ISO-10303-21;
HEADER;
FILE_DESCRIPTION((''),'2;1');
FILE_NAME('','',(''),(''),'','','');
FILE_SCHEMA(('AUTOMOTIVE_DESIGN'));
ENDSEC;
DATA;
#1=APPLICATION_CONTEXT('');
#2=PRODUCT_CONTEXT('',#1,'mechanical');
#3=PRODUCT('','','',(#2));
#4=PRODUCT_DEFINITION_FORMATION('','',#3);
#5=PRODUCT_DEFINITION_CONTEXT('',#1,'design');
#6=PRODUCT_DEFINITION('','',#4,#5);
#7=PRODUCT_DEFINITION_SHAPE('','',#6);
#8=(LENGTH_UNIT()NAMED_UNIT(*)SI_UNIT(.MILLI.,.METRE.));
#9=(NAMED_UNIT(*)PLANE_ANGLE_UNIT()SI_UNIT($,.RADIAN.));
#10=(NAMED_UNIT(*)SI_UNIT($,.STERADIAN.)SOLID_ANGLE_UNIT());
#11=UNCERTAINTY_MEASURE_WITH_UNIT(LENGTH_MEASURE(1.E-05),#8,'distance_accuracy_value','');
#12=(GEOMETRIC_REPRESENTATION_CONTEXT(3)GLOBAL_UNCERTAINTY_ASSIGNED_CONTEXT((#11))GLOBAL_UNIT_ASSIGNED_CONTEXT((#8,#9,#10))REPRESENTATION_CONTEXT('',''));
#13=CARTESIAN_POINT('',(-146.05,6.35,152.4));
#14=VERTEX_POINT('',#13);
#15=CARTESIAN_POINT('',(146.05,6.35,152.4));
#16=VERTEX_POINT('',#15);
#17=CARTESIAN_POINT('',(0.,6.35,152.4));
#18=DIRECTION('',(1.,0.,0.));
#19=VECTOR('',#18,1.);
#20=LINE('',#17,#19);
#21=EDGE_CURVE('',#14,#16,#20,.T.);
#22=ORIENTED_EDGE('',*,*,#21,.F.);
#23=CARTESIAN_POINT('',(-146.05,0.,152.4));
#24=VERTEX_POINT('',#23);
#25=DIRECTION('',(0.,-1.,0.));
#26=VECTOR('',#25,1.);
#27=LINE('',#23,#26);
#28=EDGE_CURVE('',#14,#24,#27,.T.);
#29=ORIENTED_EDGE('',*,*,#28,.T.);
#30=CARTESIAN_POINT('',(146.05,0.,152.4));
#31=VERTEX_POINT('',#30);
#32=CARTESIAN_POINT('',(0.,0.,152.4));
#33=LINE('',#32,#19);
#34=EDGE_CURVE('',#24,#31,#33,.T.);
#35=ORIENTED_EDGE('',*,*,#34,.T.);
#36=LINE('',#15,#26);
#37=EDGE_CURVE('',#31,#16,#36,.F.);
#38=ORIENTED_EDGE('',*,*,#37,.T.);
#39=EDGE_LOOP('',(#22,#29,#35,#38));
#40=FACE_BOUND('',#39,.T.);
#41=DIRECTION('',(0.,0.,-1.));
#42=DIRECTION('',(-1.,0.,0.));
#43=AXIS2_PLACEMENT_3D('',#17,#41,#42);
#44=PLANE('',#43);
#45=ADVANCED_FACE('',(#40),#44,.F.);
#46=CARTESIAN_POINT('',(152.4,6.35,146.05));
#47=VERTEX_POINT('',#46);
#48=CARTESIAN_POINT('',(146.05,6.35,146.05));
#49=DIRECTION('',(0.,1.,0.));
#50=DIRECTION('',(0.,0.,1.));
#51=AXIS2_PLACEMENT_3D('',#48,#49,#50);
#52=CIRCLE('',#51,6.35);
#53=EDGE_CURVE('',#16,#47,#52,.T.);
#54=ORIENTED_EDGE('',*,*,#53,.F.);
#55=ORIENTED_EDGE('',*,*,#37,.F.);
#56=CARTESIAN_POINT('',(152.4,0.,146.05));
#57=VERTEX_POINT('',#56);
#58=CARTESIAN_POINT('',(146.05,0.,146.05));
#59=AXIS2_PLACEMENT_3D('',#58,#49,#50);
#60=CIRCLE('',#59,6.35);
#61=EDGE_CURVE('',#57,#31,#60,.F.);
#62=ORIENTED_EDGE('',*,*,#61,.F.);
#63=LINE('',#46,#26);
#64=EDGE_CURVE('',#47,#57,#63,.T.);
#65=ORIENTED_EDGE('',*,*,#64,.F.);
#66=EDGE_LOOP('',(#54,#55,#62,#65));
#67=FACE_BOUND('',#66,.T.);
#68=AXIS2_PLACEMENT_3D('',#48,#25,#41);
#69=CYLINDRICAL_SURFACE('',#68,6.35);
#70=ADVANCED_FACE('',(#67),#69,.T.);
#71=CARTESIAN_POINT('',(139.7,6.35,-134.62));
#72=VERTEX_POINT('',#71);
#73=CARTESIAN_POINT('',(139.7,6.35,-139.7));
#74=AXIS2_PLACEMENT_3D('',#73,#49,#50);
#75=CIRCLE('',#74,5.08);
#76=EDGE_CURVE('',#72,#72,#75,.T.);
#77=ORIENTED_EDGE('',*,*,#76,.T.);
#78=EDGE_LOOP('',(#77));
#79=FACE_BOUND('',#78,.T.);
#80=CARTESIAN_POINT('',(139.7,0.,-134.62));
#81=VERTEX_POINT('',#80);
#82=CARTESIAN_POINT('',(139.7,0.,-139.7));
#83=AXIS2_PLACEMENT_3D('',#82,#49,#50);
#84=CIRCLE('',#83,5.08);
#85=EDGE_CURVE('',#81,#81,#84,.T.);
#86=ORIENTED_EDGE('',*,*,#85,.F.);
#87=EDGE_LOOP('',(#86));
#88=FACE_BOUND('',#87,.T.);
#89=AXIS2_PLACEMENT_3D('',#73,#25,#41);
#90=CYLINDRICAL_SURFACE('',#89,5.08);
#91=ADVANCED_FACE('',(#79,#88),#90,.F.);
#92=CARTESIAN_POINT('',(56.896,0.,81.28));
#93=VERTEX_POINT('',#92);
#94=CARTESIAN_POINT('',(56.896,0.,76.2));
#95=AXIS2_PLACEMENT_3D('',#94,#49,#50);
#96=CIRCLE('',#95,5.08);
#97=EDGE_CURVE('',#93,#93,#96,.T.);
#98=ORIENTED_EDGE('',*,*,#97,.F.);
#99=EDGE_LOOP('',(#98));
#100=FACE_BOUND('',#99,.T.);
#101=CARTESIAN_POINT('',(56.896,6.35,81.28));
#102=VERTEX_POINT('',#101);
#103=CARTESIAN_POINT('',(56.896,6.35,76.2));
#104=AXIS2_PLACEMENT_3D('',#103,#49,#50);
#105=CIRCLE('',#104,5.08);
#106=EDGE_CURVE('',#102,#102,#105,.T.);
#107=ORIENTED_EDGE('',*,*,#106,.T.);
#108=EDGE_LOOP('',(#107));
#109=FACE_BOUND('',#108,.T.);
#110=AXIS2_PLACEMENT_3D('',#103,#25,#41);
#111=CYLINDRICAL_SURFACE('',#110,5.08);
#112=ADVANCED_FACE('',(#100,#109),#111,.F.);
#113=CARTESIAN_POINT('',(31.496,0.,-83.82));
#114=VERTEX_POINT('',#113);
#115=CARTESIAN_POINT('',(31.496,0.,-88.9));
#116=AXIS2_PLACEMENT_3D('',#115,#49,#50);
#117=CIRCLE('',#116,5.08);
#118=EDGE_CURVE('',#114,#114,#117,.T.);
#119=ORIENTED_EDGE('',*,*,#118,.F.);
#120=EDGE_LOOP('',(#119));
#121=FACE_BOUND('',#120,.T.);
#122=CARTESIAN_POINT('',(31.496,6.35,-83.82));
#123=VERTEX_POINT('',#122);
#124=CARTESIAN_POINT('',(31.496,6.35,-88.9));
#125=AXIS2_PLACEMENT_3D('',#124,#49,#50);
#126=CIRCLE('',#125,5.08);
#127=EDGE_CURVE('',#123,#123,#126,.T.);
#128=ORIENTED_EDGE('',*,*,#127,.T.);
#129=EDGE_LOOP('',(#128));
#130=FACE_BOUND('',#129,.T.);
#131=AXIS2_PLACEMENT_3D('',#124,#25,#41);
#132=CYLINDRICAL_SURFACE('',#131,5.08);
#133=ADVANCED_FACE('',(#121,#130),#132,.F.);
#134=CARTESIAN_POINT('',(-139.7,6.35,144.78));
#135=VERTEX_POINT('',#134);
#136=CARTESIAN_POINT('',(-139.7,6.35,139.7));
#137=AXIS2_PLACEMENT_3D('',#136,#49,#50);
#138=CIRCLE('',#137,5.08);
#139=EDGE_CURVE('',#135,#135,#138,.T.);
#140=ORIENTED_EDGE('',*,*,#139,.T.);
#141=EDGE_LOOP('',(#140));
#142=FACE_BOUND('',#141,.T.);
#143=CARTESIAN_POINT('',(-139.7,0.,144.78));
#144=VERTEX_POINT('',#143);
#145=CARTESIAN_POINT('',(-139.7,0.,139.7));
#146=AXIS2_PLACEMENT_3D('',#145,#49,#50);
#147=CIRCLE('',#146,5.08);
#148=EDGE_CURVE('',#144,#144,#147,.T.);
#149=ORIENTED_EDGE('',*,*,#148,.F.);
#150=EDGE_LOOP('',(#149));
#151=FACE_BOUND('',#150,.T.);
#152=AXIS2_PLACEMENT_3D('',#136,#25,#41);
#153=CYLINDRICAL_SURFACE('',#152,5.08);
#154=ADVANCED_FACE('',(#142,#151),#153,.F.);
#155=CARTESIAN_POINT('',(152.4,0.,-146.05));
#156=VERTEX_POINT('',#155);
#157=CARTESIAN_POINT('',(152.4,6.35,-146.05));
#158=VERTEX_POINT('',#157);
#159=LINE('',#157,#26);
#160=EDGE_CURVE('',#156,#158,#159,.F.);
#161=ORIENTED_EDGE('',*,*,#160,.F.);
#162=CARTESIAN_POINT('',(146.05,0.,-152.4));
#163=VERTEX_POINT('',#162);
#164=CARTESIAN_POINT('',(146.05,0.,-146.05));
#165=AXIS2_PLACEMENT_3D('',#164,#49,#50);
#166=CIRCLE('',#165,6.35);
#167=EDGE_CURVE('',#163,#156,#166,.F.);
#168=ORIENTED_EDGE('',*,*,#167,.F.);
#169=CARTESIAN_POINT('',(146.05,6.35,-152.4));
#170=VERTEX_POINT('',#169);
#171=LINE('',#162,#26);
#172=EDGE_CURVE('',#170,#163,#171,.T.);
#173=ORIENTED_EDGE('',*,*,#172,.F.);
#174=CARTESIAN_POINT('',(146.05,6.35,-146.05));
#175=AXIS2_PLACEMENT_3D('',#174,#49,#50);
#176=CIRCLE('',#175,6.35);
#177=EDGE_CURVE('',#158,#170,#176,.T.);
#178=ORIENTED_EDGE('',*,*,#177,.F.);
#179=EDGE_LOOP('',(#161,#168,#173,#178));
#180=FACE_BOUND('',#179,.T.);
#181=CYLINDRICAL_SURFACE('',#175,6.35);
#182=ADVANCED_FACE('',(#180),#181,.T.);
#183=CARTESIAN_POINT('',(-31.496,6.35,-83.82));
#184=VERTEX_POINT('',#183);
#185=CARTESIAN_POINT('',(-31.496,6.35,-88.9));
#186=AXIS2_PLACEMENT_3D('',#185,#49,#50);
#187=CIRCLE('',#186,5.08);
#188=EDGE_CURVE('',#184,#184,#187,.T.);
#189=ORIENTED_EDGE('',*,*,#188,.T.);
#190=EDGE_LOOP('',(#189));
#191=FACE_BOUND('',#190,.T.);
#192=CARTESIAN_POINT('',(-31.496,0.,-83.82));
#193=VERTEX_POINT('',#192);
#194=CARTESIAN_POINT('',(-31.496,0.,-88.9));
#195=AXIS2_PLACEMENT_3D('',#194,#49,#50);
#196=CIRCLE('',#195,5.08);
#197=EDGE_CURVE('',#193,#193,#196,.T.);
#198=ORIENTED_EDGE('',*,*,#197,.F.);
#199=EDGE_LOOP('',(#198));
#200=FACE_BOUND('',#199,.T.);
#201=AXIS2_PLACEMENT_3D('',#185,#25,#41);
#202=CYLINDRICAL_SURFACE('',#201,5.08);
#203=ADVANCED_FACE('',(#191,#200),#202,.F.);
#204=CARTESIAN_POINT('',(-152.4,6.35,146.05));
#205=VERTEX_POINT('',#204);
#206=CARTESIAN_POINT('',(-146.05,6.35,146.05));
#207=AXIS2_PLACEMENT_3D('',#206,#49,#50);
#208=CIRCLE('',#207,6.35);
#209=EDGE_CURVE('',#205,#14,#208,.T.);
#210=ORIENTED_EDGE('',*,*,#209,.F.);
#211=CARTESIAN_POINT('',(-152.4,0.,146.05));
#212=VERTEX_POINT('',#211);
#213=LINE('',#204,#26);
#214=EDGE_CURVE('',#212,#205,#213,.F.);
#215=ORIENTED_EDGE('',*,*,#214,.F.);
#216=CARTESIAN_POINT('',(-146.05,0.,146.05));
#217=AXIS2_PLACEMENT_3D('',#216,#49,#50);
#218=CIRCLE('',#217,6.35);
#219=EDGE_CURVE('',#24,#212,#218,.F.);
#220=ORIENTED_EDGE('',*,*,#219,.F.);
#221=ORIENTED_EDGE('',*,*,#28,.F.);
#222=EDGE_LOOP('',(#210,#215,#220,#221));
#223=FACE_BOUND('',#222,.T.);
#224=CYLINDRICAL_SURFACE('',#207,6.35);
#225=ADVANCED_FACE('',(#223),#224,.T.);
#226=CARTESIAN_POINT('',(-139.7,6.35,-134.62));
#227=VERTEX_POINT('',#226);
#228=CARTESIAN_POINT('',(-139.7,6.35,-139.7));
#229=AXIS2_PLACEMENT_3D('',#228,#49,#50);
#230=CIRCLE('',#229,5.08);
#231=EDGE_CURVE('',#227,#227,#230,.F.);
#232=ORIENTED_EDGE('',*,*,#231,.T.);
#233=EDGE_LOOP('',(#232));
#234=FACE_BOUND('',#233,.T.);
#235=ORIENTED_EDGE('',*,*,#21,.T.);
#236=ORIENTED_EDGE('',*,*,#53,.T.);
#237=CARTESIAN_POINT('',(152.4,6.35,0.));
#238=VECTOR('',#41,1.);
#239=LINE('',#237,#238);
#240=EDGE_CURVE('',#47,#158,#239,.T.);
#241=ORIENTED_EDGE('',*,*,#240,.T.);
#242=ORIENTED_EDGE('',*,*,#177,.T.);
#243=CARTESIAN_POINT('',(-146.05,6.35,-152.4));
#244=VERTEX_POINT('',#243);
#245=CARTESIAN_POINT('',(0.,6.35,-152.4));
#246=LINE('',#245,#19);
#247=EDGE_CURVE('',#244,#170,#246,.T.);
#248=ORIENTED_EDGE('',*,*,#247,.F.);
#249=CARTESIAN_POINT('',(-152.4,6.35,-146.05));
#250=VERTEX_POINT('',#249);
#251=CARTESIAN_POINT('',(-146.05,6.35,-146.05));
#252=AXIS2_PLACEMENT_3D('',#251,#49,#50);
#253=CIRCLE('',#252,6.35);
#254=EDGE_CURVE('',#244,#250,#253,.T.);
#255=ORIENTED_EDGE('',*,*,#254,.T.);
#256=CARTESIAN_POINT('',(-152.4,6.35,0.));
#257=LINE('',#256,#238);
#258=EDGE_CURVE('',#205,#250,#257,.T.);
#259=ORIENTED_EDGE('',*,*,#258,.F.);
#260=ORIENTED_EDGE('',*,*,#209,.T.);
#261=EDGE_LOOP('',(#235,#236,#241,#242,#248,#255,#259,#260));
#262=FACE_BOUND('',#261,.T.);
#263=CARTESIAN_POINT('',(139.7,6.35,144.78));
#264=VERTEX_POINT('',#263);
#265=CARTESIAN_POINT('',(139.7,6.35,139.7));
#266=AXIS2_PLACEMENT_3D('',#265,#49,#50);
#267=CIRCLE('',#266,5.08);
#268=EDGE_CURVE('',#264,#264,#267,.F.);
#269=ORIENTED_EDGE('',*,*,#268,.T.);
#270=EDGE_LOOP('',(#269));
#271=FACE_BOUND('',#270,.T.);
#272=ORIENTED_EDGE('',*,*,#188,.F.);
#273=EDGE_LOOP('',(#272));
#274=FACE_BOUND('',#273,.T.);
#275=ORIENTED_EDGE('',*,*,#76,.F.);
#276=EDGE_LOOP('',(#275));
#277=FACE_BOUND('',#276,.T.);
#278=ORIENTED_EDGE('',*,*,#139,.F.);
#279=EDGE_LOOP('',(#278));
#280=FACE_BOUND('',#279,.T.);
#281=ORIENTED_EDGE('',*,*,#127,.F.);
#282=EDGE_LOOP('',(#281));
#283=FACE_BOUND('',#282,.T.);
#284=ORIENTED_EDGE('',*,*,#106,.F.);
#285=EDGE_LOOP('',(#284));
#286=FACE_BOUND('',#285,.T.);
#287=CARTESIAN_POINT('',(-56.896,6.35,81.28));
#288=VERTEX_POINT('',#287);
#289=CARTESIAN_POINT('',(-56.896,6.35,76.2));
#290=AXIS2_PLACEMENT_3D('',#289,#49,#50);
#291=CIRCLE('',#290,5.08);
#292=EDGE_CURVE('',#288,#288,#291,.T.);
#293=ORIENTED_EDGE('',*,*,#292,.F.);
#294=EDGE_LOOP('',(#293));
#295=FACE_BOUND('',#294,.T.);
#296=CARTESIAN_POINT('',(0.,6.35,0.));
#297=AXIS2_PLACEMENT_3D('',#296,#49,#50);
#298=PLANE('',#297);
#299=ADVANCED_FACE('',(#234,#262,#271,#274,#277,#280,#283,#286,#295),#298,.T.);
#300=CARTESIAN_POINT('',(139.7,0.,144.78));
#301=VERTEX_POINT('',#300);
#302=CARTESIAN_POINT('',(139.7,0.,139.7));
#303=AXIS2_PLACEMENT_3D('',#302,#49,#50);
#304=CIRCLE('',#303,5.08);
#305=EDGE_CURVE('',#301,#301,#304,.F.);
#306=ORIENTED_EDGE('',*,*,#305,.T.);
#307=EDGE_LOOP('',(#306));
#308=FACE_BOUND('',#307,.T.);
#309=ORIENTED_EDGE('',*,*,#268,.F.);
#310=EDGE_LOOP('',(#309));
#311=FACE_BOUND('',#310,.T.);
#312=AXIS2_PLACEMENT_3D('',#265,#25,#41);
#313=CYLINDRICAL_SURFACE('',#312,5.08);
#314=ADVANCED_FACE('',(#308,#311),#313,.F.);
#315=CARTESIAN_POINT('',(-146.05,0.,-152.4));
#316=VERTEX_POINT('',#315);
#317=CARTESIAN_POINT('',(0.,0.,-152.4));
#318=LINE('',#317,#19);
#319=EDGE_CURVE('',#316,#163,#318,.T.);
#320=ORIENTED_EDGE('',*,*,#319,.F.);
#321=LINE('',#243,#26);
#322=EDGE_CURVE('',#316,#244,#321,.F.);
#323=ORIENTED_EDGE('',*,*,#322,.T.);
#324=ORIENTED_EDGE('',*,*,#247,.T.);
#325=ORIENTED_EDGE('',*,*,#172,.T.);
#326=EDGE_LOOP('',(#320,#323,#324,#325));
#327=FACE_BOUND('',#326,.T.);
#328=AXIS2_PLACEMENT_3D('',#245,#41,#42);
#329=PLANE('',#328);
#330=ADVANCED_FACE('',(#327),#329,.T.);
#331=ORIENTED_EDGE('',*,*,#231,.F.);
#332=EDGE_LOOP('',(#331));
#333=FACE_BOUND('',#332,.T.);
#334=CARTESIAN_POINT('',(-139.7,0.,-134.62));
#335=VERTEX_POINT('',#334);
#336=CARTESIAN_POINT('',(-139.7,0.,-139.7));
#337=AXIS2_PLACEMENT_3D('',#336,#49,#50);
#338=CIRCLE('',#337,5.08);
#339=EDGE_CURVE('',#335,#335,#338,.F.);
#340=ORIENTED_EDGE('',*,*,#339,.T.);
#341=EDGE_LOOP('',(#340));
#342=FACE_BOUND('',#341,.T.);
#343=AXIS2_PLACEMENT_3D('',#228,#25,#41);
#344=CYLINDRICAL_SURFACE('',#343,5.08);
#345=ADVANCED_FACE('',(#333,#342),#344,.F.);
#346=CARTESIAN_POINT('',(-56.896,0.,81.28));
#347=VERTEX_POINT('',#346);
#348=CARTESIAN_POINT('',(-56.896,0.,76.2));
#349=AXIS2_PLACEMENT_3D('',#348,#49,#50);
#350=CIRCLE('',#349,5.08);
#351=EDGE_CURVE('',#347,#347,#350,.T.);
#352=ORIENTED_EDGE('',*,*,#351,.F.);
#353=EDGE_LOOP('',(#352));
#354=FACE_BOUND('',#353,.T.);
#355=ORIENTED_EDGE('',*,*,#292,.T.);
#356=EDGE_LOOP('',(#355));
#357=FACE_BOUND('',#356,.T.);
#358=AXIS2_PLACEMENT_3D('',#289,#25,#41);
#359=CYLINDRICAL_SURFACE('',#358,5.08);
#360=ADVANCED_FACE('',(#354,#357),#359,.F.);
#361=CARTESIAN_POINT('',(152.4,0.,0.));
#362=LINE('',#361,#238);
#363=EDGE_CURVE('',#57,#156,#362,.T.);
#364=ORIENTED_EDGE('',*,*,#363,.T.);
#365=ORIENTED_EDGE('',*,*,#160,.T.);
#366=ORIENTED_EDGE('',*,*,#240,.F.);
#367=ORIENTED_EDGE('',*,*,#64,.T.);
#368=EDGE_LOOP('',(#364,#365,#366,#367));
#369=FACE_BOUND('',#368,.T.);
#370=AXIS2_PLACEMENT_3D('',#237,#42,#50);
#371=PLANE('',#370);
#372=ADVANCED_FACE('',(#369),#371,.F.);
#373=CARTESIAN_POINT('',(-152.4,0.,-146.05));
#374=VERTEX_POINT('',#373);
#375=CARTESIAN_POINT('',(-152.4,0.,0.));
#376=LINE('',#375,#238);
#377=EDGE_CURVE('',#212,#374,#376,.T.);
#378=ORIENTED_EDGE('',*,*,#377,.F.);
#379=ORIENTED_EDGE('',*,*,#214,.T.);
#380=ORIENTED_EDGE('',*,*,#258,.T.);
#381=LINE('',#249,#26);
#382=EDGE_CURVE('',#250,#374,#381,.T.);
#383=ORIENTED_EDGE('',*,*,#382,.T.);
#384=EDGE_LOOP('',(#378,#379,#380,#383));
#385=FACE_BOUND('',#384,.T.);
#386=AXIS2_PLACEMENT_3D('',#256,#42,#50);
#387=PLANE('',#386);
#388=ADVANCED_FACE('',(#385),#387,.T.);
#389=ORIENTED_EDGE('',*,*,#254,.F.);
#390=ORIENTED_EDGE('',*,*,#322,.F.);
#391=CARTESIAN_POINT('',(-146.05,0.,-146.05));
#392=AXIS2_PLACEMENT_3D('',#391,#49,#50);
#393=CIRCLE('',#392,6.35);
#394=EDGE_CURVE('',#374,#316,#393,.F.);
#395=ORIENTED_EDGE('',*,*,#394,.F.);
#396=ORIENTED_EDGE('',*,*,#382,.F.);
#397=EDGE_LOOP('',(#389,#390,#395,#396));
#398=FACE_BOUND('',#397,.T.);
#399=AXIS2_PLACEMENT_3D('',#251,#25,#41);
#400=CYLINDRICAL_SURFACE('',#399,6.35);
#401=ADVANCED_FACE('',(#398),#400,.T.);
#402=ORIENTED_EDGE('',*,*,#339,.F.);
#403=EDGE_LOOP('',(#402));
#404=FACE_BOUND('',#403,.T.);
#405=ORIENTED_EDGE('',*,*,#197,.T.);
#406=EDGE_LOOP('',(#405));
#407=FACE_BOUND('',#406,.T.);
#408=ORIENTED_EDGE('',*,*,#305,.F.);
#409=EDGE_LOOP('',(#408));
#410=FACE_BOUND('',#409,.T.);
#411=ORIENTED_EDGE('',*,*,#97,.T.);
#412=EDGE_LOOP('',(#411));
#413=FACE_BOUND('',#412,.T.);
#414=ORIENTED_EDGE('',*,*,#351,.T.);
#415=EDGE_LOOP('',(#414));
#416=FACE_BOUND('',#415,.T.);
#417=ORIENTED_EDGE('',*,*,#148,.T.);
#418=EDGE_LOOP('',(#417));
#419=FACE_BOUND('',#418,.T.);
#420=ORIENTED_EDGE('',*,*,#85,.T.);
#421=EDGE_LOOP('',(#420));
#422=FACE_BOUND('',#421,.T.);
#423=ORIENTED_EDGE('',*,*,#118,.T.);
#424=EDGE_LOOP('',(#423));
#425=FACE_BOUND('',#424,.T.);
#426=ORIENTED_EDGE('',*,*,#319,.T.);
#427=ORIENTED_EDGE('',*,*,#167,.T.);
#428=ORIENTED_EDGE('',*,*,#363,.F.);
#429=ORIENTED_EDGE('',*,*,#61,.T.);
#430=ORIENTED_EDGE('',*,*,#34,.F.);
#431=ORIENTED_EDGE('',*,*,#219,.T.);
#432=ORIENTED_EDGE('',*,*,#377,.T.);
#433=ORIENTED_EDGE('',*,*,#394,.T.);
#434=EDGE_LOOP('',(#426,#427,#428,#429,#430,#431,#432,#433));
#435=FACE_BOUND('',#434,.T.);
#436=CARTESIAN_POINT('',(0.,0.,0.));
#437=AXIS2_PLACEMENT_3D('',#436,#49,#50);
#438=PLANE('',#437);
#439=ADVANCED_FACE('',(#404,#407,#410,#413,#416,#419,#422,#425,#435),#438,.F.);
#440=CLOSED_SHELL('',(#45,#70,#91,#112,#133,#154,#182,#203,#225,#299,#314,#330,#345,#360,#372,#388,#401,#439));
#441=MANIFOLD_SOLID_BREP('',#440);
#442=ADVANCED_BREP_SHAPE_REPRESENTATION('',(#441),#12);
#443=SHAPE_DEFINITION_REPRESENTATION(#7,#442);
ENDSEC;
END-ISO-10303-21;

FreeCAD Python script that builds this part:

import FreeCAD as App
import Part
import Sketcher
Q = App.Units.Quantity


def edges_at(feature, points):
    """Names of the edges that pass closest to the given points."""
    edges = feature.Shape.Edges
    near = lambda p: min(range(len(edges)), key=lambda i: edges[i].distToShape(Part.Vertex(*p))[0])
    return sorted({f"Edge{near(p) + 1}" for p in points})


def add_polygon(sketch, points):
    """Adds a closed chain of lines whose ends are joined by coincident constraints."""
    first, n = sketch.GeometryCount, len(points)
    for a, b in zip(points, points[1:] + points[:1]):
        sketch.addGeometry(Part.LineSegment(App.Vector(*a, 0), App.Vector(*b, 0)), False)
    for i in range(n):
        sketch.addConstraint(Sketcher.Constraint("Coincident", first + i, 2, first + (i + 1) % n, 1))

doc = App.newDocument("Part")
params = doc.addObject("Spreadsheet::Sheet", "Params")
for row, (alias, value) in enumerate([
    ("sketch1_diameter", "0.4 in"),
    ("sketch1_width", "12 in"),
    ("pad1_length", "0.25 in"),
    ("fillet_radius", "0.25 in"),
    ("fillet2_radius", "0.25 in"),
], start=1):
    params.set(f"A{row}", alias)
    params.set(f"B{row}", "=" + value)
    params.setAlias(f"B{row}", alias)

body = doc.addObject("PartDesign::Body", "Body")

# Sketch on XZ plane
sketch1 = body.newObject("Sketcher::SketchObject", "Sketch")
sketch1.AttachmentSupport = (doc.getObject("XZ_Plane"), [""])
sketch1.MapMode = "FlatFace"
add_polygon(sketch1, [(-152, -152), (-152, 152), (152, 152), (152, -152)])  # lines 0-3
sketch1.addGeometry(Part.Circle(App.Vector(-140, 140, 0), App.Vector(0, 0, 1), 5), False)  # 4
sketch1.addGeometry(Part.Circle(App.Vector(-57, 76, 0), App.Vector(0, 0, 1), 5), False)  # 5
sketch1.addGeometry(Part.Circle(App.Vector(57, 76, 0), App.Vector(0, 0, 1), 5), False)  # 6
sketch1.addGeometry(Part.Circle(App.Vector(140, 140, 0), App.Vector(0, 0, 1), 5), False)  # 7
sketch1.addGeometry(Part.Circle(App.Vector(-140, -140, 0), App.Vector(0, 0, 1), 5), False)  # 8
sketch1.addGeometry(Part.Circle(App.Vector(-31, -89, 0), App.Vector(0, 0, 1), 5), False)  # 9
sketch1.addGeometry(Part.Circle(App.Vector(31, -89, 0), App.Vector(0, 0, 1), 5), False)  # 10
sketch1.addGeometry(Part.Circle(App.Vector(140, -140, 0), App.Vector(0, 0, 1), 5), False)  # 11
sketch1.addConstraint([
    Sketcher.Constraint("Vertical", 0),
    Sketcher.Constraint("Horizontal", 1),
    Sketcher.Constraint("Vertical", 2),
    Sketcher.Constraint("Horizontal", 3),
    Sketcher.Constraint("Equal", 4, 5),
    Sketcher.Constraint("Equal", 5, 6),
    Sketcher.Constraint("Equal", 6, 7),
    Sketcher.Constraint("Equal", 7, 8),
    Sketcher.Constraint("Equal", 8, 9),
    Sketcher.Constraint("Equal", 9, 10),
    Sketcher.Constraint("Equal", 10, 11),
    Sketcher.Constraint("Symmetric", 7, 3, 8, 3, -1, 1),
    Sketcher.Constraint("Symmetric", 4, 3, 11, 3, -1, 1),
    Sketcher.Constraint("Symmetric", 0, 2, 2, 2, -1, 1),
    Sketcher.Constraint("Symmetric", 5, 3, 6, 3, -2),
    Sketcher.Constraint("Symmetric", 4, 3, 7, 3, -2),
    Sketcher.Constraint("Symmetric", 9, 3, 10, 3, -2),
    Sketcher.Constraint("Equal", 3, 0),
    Sketcher.Constraint("Diameter", 4, Q("0.4 in")),
    Sketcher.Constraint("DistanceX", 1, 1, 1, 2, Q("12 in")),
    Sketcher.Constraint("DistanceY", -1, 1, 5, 3, Q("3 in")),
    Sketcher.Constraint("DistanceX", 4, 3, 7, 3, Q("11 in")),
    Sketcher.Constraint("DistanceY", 8, 3, 4, 3, Q("11 in")),
    Sketcher.Constraint("DistanceY", 8, 3, 9, 3, Q("2 in")),
    Sketcher.Constraint("DistanceX", 5, 3, 9, 3, Q("1 in")),
    Sketcher.Constraint("DistanceX", 5, 3, -1, 1, Q("2.24 in")),
])
sketch1.setExpression("Constraints[22]", "Params.sketch1_diameter")
sketch1.setExpression("Constraints[23]", "Params.sketch1_width")
pad1 = body.newObject("PartDesign::Pad", "Pad")
pad1.Profile = sketch1
pad1.setExpression("Length", "Params.pad1_length")
pad1.Reversed = True
doc.recompute()

fillet = body.newObject("PartDesign::Fillet", "Fillet")
fillet.Base = (pad1, edges_at(pad1, [(-152.4, 3.175, 152.4)]))
fillet.setExpression("Radius", "Params.fillet_radius")
doc.recompute()

fillet2 = body.newObject("PartDesign::Fillet", "Fillet001")
fillet2.Base = (fillet, edges_at(fillet, [(-152.4, 3.175, -152.4), (152.4, 3.175, -152.4), (152.4, 3.175, 152.4)]))
fillet2.setExpression("Radius", "Params.fillet2_radius")

doc.recompute()
